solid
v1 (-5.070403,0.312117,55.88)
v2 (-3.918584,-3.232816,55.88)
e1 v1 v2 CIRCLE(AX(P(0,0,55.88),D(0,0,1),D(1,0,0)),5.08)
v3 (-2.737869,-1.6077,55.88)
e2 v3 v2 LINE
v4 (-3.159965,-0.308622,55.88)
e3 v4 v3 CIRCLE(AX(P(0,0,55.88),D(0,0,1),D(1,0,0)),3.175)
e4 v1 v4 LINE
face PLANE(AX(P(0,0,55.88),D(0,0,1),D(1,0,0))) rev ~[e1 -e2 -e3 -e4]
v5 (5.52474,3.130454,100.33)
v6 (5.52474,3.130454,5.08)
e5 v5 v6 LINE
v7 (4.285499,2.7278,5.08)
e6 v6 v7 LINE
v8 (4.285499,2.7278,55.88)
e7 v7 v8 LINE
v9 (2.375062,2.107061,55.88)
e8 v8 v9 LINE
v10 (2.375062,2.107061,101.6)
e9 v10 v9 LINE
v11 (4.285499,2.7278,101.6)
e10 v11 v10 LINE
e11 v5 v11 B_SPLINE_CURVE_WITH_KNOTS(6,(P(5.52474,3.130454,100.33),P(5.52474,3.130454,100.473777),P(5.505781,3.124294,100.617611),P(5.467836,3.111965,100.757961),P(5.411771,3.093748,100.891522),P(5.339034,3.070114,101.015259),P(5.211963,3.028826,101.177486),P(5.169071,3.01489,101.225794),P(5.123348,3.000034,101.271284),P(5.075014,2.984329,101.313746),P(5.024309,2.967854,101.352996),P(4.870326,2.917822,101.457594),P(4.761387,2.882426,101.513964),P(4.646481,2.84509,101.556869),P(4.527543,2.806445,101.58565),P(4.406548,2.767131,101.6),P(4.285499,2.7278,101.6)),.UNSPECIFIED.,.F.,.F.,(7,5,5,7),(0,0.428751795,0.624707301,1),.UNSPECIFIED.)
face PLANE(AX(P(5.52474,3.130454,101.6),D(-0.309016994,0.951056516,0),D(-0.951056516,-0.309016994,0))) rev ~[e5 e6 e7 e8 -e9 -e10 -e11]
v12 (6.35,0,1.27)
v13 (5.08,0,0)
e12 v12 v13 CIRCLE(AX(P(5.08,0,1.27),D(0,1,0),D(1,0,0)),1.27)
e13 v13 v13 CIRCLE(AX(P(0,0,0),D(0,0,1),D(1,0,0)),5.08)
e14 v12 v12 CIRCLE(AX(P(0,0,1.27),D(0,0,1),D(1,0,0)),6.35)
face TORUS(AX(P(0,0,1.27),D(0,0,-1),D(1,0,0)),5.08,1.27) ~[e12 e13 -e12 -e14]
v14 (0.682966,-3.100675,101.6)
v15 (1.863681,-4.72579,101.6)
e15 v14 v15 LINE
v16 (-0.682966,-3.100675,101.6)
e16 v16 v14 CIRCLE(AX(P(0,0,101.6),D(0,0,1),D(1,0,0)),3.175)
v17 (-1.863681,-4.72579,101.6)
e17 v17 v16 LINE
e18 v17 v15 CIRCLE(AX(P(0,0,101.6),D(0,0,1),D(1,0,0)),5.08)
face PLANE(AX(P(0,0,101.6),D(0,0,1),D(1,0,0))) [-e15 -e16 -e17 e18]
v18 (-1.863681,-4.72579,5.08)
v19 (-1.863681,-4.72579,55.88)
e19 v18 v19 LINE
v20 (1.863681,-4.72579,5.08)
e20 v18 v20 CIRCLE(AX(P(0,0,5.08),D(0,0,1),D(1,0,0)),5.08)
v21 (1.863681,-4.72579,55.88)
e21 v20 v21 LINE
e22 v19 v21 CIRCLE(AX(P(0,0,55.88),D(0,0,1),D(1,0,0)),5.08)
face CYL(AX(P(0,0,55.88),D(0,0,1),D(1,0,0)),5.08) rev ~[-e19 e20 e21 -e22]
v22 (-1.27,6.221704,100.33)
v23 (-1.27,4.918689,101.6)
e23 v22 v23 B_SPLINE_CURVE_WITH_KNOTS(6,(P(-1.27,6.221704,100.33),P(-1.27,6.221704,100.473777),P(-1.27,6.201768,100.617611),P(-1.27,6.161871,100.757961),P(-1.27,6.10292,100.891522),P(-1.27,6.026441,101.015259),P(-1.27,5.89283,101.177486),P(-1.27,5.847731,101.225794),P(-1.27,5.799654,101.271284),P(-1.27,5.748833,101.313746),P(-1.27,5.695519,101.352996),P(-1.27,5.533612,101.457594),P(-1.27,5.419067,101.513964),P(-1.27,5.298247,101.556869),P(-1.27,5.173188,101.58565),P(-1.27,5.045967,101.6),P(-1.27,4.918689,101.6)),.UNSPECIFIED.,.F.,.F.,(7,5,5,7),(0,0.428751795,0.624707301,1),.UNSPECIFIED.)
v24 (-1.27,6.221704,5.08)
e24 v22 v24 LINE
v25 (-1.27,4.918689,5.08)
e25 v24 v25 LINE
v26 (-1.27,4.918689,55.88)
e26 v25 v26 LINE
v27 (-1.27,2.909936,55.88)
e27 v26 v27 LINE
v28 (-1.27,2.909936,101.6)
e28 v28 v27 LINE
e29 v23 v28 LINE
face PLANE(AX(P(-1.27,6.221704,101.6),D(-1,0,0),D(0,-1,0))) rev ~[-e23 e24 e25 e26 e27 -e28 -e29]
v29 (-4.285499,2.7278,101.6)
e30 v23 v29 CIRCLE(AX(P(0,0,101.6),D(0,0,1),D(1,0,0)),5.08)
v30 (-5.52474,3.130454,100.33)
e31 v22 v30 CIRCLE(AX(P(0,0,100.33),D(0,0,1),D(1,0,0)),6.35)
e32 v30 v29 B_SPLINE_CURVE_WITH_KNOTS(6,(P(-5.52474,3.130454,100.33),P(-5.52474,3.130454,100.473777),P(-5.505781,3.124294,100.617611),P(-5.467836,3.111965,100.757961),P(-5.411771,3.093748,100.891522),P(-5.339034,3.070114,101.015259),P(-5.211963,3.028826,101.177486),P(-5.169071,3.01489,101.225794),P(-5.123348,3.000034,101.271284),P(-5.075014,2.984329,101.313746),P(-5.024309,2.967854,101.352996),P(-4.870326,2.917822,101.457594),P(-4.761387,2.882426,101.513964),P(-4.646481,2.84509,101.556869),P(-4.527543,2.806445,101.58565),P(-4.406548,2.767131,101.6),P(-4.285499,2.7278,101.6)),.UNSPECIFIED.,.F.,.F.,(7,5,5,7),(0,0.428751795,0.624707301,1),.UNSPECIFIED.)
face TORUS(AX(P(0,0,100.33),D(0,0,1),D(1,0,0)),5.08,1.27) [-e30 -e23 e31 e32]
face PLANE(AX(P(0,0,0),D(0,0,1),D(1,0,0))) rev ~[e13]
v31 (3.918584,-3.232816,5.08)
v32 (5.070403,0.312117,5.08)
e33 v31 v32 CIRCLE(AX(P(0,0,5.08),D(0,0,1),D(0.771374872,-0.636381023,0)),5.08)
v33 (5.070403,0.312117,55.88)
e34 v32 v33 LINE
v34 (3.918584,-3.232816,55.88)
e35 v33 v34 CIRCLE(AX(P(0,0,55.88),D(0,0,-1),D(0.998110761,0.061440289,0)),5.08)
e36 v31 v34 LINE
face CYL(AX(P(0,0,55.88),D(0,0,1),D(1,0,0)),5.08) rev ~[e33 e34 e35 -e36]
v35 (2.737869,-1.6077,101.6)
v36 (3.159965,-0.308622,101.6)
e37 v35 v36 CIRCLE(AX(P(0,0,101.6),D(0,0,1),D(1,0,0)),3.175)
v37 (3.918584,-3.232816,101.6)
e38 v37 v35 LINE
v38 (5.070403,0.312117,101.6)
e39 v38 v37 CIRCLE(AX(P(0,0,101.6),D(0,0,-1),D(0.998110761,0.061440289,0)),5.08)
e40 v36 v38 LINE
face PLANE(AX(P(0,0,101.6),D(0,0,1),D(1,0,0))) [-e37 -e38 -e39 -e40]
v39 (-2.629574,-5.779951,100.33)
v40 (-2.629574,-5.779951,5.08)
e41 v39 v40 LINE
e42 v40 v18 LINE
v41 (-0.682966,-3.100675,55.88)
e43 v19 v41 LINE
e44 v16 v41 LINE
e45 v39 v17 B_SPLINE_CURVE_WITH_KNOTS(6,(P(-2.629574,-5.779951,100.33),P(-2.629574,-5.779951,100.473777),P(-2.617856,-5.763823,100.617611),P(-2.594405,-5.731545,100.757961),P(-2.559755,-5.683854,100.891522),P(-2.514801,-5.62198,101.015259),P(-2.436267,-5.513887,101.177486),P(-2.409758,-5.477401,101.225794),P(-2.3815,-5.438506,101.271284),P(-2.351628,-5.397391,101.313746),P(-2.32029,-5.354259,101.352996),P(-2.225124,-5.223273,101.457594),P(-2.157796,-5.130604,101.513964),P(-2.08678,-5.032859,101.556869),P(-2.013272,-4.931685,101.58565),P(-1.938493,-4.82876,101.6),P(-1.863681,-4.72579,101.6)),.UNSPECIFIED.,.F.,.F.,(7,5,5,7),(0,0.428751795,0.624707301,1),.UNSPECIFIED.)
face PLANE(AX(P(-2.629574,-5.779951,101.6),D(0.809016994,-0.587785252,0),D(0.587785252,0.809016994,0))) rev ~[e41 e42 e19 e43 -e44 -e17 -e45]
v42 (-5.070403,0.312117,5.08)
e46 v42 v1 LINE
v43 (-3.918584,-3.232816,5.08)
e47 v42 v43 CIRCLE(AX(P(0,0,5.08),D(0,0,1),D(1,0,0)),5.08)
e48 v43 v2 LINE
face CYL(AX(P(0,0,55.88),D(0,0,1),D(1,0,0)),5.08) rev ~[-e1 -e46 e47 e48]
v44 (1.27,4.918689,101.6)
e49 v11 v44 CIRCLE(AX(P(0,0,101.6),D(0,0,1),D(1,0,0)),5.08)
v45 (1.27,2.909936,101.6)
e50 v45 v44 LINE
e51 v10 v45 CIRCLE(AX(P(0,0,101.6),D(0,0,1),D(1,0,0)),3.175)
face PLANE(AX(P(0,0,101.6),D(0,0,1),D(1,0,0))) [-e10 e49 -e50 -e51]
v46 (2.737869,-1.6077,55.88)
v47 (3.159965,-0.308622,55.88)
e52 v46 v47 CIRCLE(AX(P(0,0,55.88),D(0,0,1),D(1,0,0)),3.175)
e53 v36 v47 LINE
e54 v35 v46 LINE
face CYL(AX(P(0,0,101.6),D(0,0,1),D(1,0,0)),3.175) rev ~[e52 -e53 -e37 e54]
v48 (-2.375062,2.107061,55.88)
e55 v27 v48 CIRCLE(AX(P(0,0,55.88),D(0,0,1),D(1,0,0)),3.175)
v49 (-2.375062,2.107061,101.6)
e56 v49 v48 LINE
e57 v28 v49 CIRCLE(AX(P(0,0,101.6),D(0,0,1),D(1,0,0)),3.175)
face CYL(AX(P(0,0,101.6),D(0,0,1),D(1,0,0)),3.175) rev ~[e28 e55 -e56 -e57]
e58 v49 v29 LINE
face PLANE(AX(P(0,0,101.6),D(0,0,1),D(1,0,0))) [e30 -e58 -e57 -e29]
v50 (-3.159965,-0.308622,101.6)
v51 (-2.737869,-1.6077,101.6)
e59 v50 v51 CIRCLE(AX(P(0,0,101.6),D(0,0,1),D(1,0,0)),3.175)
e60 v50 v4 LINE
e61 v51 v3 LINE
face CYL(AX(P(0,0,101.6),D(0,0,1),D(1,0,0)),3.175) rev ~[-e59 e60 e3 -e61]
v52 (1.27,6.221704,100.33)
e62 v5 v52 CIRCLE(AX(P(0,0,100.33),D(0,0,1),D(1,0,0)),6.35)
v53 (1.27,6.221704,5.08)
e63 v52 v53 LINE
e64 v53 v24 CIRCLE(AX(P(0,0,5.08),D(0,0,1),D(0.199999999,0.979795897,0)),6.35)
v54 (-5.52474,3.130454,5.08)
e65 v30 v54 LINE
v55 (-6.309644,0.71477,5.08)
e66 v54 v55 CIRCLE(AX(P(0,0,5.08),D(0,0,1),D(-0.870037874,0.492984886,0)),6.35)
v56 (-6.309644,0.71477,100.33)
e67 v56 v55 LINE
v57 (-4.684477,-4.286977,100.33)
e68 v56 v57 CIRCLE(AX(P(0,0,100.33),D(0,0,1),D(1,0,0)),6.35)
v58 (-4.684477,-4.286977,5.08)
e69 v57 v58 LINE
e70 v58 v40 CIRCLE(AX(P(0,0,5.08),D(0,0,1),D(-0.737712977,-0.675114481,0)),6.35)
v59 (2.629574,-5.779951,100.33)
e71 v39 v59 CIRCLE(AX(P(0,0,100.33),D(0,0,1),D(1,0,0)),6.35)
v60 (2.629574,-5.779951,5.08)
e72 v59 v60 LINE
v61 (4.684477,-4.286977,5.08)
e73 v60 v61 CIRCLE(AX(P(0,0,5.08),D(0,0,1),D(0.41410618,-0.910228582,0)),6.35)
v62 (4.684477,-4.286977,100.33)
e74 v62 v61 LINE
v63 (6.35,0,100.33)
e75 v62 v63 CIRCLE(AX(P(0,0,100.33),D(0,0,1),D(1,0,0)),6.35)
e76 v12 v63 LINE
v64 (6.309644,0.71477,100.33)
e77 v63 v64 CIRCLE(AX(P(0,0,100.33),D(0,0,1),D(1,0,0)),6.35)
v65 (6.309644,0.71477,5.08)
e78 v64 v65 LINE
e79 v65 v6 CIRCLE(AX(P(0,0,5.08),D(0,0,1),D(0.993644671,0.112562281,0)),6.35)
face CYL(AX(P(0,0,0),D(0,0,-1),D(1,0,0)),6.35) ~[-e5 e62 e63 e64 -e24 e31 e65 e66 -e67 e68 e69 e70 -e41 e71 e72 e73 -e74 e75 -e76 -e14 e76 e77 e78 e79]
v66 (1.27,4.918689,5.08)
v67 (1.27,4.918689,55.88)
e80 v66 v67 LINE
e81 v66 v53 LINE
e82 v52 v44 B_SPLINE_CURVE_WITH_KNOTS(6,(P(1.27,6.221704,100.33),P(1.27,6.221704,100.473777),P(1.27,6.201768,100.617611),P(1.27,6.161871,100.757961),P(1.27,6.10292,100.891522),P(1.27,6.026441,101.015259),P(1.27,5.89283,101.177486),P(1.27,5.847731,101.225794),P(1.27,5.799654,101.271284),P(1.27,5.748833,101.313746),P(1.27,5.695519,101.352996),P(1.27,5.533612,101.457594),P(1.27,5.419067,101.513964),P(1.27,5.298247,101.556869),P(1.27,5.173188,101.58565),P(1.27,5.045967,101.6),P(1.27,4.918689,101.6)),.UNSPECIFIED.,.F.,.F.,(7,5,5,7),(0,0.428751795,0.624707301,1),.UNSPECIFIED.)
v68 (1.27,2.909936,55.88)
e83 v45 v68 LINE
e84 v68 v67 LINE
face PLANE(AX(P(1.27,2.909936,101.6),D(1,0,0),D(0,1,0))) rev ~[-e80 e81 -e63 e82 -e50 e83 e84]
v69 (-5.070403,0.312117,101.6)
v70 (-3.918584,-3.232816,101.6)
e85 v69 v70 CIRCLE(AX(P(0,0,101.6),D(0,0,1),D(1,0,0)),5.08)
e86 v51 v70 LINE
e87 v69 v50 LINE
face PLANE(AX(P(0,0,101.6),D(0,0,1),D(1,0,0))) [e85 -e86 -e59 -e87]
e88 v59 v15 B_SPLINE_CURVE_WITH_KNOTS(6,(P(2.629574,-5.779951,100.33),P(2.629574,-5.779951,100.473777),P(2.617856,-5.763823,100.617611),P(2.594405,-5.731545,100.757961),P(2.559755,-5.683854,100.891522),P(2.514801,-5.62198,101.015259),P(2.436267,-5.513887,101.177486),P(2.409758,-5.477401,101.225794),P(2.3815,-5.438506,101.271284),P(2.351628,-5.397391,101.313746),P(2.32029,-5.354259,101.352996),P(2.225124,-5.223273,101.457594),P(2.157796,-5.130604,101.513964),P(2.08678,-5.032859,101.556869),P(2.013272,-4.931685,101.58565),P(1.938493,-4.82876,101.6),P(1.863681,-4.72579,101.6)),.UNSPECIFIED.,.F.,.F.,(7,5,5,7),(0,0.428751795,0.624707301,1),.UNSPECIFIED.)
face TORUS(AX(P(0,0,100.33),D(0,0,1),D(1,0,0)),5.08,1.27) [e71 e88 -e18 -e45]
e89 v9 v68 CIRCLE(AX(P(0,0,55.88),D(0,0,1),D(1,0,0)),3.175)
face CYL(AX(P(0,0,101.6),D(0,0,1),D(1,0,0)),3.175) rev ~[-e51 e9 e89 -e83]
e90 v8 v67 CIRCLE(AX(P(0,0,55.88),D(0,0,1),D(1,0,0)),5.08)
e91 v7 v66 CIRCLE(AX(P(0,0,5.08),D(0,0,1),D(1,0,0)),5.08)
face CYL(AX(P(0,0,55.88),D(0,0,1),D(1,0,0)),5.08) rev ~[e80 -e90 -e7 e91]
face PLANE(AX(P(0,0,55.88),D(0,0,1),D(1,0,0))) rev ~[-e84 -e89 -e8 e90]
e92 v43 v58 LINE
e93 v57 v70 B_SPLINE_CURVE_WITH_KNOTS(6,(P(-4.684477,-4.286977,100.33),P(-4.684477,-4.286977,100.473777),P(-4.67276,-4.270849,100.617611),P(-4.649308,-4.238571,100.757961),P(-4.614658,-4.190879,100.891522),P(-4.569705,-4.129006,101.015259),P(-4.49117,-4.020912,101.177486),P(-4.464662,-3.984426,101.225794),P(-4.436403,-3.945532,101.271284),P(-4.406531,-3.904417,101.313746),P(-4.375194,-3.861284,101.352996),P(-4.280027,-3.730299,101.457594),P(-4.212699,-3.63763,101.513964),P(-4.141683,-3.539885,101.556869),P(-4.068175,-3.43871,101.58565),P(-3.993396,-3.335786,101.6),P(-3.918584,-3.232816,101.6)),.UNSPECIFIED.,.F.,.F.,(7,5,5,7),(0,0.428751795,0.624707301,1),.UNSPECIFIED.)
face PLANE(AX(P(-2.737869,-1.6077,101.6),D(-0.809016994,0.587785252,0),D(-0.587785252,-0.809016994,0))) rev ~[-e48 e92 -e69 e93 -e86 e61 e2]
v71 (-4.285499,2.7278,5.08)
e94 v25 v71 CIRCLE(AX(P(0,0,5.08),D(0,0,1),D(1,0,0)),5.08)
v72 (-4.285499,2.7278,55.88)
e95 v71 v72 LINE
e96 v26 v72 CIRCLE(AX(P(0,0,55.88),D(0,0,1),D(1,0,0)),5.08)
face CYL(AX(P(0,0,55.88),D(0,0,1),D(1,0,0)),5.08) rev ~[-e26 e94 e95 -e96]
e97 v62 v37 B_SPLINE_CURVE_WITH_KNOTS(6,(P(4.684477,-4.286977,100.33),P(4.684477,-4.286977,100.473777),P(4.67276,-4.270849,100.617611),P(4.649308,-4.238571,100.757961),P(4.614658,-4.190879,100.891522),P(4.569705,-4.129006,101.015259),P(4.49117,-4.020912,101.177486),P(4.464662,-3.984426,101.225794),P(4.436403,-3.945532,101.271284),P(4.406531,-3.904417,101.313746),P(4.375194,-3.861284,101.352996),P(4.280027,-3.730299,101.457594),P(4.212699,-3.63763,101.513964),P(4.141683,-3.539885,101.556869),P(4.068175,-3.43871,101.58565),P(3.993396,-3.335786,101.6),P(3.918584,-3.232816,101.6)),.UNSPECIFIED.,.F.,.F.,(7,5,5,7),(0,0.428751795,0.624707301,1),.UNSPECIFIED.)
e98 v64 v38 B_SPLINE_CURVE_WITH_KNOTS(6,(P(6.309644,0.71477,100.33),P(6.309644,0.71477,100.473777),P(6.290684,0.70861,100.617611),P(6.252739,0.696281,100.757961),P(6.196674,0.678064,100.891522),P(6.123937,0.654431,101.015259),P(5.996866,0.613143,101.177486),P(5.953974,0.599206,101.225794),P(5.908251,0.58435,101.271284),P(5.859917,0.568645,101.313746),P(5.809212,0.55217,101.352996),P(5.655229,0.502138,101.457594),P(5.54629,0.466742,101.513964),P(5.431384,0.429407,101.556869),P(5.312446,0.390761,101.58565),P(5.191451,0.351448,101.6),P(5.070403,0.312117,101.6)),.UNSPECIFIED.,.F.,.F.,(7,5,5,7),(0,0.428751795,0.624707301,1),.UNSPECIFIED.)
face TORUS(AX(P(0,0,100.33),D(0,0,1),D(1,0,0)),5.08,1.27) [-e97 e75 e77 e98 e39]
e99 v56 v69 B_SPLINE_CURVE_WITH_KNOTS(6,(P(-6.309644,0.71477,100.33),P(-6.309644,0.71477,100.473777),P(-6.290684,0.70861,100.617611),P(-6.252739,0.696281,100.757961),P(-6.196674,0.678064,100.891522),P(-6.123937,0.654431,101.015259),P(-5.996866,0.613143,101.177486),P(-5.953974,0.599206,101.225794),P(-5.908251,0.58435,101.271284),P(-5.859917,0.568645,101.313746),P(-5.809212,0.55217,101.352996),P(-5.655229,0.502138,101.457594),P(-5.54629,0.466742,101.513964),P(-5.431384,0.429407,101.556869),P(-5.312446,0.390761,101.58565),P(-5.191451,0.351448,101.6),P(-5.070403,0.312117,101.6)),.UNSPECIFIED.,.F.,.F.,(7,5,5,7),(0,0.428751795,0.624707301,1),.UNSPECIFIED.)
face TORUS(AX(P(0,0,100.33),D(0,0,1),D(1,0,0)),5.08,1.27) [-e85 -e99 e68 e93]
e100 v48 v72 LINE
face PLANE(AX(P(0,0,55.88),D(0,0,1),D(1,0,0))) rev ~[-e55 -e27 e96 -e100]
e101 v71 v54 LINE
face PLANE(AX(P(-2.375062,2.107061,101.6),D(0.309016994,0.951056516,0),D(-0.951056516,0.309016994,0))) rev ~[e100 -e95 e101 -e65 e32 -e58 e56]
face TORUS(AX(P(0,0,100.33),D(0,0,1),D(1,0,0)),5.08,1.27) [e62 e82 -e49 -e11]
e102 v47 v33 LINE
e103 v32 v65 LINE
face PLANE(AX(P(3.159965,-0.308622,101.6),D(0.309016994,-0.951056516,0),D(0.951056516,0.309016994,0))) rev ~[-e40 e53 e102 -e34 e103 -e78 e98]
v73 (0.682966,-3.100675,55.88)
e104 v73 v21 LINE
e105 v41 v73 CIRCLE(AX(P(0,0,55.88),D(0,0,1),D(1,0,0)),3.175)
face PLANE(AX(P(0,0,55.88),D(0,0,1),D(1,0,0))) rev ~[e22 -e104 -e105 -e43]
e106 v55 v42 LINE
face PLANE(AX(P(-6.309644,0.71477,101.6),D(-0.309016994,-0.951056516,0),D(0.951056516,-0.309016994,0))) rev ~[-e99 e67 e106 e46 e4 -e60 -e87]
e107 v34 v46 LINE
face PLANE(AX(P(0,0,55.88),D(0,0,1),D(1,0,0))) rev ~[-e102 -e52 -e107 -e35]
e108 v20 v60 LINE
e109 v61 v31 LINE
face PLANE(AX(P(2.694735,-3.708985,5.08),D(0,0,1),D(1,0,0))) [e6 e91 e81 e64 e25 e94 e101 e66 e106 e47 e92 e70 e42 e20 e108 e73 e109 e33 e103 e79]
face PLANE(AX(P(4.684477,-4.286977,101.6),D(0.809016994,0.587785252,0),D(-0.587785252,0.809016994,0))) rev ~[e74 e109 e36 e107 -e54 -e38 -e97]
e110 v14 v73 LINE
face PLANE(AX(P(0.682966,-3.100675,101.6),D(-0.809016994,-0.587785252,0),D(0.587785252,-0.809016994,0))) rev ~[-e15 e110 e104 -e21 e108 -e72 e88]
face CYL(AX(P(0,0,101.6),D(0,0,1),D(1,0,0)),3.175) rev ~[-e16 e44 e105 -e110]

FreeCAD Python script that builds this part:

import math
import FreeCAD as App
import Part
import Sketcher
from FreeCAD import Vector
Q = App.Units.Quantity


def edges_at(feature, points):
    """Names of the edges that pass closest to the given points."""
    edges = feature.Shape.Edges
    near = lambda p: min(range(len(edges)), key=lambda i: edges[i].distToShape(Part.Vertex(*p))[0])
    return sorted({f"Edge{near(p) + 1}" for p in points})

doc = App.newDocument("Part")
body = doc.addObject("PartDesign::Body", "Body")

sketch1 = body.newObject("Sketcher::SketchObject", "Sketch")
sketch1.AttachmentSupport = (doc.getObject("XY_Plane"), [""])
sketch1.MapMode = "FlatFace"
sketch1.addGeometry(Part.Circle(Vector(0, 0, 0), Vector(0, 0, 1), 6.35), False)
sketch1.addConstraint([
    Sketcher.Constraint("Coincident", 0, 3, -1, 1),
    Sketcher.Constraint("Diameter", 0, Q("0.5 in")),
])
pad1 = body.newObject("PartDesign::Pad", "Pad")
pad1.Profile = sketch1
pad1.Length = Q("4 in")
doc.recompute()

fillet = body.newObject("PartDesign::Fillet", "Fillet")
fillet.Base = (pad1, edges_at(pad1, [(-6.35, 0, 0)]))
fillet.Radius = Q("0.05 in")

sketch2 = body.newObject("Sketcher::SketchObject", "Sketch001")
sketch2.AttachmentSupport = (doc.getObject("XY_Plane"), [""])
sketch2.MapMode = "FlatFace"
sketch2.AttachmentOffset = App.Placement(Vector(0, 0, 4 * 25.4), App.Rotation())
sketch2.addGeometry(Part.Circle(Vector(0, 0, 0), Vector(0, 0, 1), 3.175), False)
sketch2.addConstraint([
    Sketcher.Constraint("Coincident", 0, 3, -1, 1),
    Sketcher.Constraint("Diameter", 0, Q("0.25 in")),
])
pocket1 = body.newObject("PartDesign::Pocket", "Pocket")
pocket1.Profile = sketch2
pocket1.Length = Q("1.8 in")

sketch3 = body.newObject("Sketcher::SketchObject", "Sketch002")
sketch3.AttachmentSupport = (doc.getObject("XY_Plane"), [""])
sketch3.MapMode = "FlatFace"
sketch3.AttachmentOffset = App.Placement(Vector(0, 0, 2.2 * 25.4), App.Rotation())
sketch3.addGeometry(Part.Circle(Vector(0, 0, 0), Vector(0, 0, 1), 5.08), False)
sketch3.addConstraint([
    Sketcher.Constraint("Coincident", 0, 3, -1, 1),
    Sketcher.Constraint("Diameter", 0, Q("0.4 in")),
])
pocket2 = body.newObject("PartDesign::Pocket", "Pocket001")
pocket2.Profile = sketch3
pocket2.Length = Q("2 in")
doc.recompute()

fillet2 = body.newObject("PartDesign::Fillet", "Fillet001")
fillet2.Base = (pocket2, edges_at(pocket2, [(-6.35, 0, 101.6)]))
fillet2.Radius = Q("0.05 in")

sketch4 = body.newObject("Sketcher::SketchObject", "Sketch003")
sketch4.AttachmentSupport = (doc.getObject("XY_Plane"), [""])
sketch4.MapMode = "FlatFace"
sketch4.AttachmentOffset = App.Placement(Vector(0, 0, 4 * 25.4), App.Rotation())
sketch4.addGeometry([
    Part.LineSegment(Vector(-1.27, 6.221704, 0), Vector(-1.27, 2.909936, 0)),
    Part.LineSegment(Vector(-1.27, 2.909936, 0), Vector(1.27, 2.909936, 0)),
    Part.LineSegment(Vector(1.27, 2.909936, 0), Vector(1.27, 6.221704, 0)),
    Part.ArcOfCircle(Part.Circle(Vector(0, 0, 0), Vector(0, 0, 1), 6.35), math.radians(78.463041), math.radians(101.536959)),
    Part.LineSegment(Vector(2.375062, 2.107061, 0), Vector(3.159965, -0.308622, 0)),
    Part.LineSegment(Vector(3.159965, -0.308622, 0), Vector(6.309644, 0.71477, 0)),
    Part.ArcOfCircle(Part.Circle(Vector(0, 0, 0), Vector(0, 0, 1), 6.35), math.radians(6.463041), math.radians(29.536959)),
    Part.LineSegment(Vector(5.52474, 3.130454, 0), Vector(2.375062, 2.107061, 0)),
    Part.LineSegment(Vector(2.737869, -1.6077, 0), Vector(0.682966, -3.100675, 0)),
    Part.LineSegment(Vector(0.682966, -3.100675, 0), Vector(2.629574, -5.779951, 0)),
    Part.ArcOfCircle(Part.Circle(Vector(0, 0, 0), Vector(0, 0, 1), 6.35), math.radians(-65.536959), math.radians(-42.463041)),
    Part.LineSegment(Vector(4.684477, -4.286977, 0), Vector(2.737869, -1.6077, 0)),
    Part.LineSegment(Vector(-0.682966, -3.100675, 0), Vector(-2.737869, -1.6077, 0)),
    Part.LineSegment(Vector(-2.737869, -1.6077, 0), Vector(-4.684477, -4.286977, 0)),
    Part.ArcOfCircle(Part.Circle(Vector(0, 0, 0), Vector(0, 0, 1), 6.35), math.radians(-137.536959), math.radians(-114.463041)),
    Part.LineSegment(Vector(-2.629574, -5.779951, 0), Vector(-0.682966, -3.100675, 0)),
    Part.LineSegment(Vector(-3.159965, -0.308622, 0), Vector(-2.375062, 2.107061, 0)),
    Part.LineSegment(Vector(-2.375062, 2.107061, 0), Vector(-5.52474, 3.130454, 0)),
    Part.ArcOfCircle(Part.Circle(Vector(0, 0, 0), Vector(0, 0, 1), 6.35), math.radians(150.463041), math.radians(173.536959)),
    Part.LineSegment(Vector(-6.309644, 0.71477, 0), Vector(-3.159965, -0.308622, 0)),
], False)
sketch4.addConstraint([
    Sketcher.Constraint("Coincident", 0, 2, 1, 1),
    Sketcher.Constraint("Coincident", 1, 2, 2, 1),
    Sketcher.Constraint("Coincident", 2, 2, 3, 1),
    Sketcher.Constraint("Coincident", 3, 2, 0, 1),
    Sketcher.Constraint("Coincident", 4, 2, 5, 1),
    Sketcher.Constraint("Coincident", 5, 2, 6, 1),
    Sketcher.Constraint("Coincident", 6, 2, 7, 1),
    Sketcher.Constraint("Coincident", 7, 2, 4, 1),
    Sketcher.Constraint("Coincident", 8, 2, 9, 1),
    Sketcher.Constraint("Coincident", 9, 2, 10, 1),
    Sketcher.Constraint("Coincident", 10, 2, 11, 1),
    Sketcher.Constraint("Coincident", 11, 2, 8, 1),
    Sketcher.Constraint("Coincident", 12, 2, 13, 1),
    Sketcher.Constraint("Coincident", 13, 2, 14, 1),
    Sketcher.Constraint("Coincident", 14, 2, 15, 1),
    Sketcher.Constraint("Coincident", 15, 2, 12, 1),
    Sketcher.Constraint("Coincident", 16, 2, 17, 1),
    Sketcher.Constraint("Coincident", 17, 2, 18, 1),
    Sketcher.Constraint("Coincident", 18, 2, 19, 1),
    Sketcher.Constraint("Coincident", 19, 2, 16, 1),
    Sketcher.Constraint("Vertical", 0),
    Sketcher.Constraint("Horizontal", 1),
    Sketcher.Constraint("Vertical", 2),
    Sketcher.Constraint("Coincident", 3, 3, -1, 1),
    Sketcher.Constraint("Coincident", 6, 3, -1, 1),
    Sketcher.Constraint("Coincident", 10, 3, -1, 1),
    Sketcher.Constraint("Coincident", 14, 3, -1, 1),
    Sketcher.Constraint("Coincident", 18, 3, -1, 1),
    Sketcher.Constraint("Equal", 3, 6),
    Sketcher.Constraint("Equal", 6, 10),
    Sketcher.Constraint("Equal", 10, 14),
    Sketcher.Constraint("Equal", 14, 18),
    Sketcher.Constraint("Symmetric", 11, 2, 12, 2, -2),
    Sketcher.Constraint("Symmetric", 8, 2, 15, 2, -2),
    Sketcher.Constraint("Symmetric", 7, 2, 16, 2, -2),
    Sketcher.Constraint("Symmetric", 4, 2, 19, 2, -2),
    Sketcher.Constraint("Perpendicular", 4, 5),
    Sketcher.Constraint("Parallel", 5, 7),
    Sketcher.Constraint("Perpendicular", 8, 9),
    Sketcher.Constraint("Parallel", 9, 11),
    Sketcher.Constraint("Perpendicular", 12, 13),
    Sketcher.Constraint("Parallel", 13, 15),
    Sketcher.Constraint("Perpendicular", 16, 17),
    Sketcher.Constraint("Parallel", 17, 19),
    Sketcher.Constraint("Horizontal", 2, 2, 3, 2),
    Sketcher.Constraint("Equal", 5, 7),
    Sketcher.Constraint("Equal", 4, 8),
    Sketcher.Constraint("Equal", 7, 9),
    Sketcher.Constraint("Equal", 9, 11),
    Sketcher.Constraint("Radius", 3, Q("0.25 in")),
    Sketcher.Constraint("DistanceX", 1, 1, 1, 2, Q("0.1 in")),
    Sketcher.Constraint("Angle", 4, Q("-72 deg")),
    Sketcher.Constraint("Angle", 8, Q("-144 deg")),
    Sketcher.Constraint("Distance", 4, Q("0.1 in")),
    Sketcher.Constraint("DistanceY", 0, 2, 0, 1, Q("3.311768 mm")),
    Sketcher.Constraint("DistanceY", 11, 2, -1, 1, Q("1.6077 mm")),
])
pocket3 = body.newObject("PartDesign::Pocket", "Pocket002")
pocket3.Profile = sketch4
pocket3.Length = Q("3.8 in")

doc.recompute()
